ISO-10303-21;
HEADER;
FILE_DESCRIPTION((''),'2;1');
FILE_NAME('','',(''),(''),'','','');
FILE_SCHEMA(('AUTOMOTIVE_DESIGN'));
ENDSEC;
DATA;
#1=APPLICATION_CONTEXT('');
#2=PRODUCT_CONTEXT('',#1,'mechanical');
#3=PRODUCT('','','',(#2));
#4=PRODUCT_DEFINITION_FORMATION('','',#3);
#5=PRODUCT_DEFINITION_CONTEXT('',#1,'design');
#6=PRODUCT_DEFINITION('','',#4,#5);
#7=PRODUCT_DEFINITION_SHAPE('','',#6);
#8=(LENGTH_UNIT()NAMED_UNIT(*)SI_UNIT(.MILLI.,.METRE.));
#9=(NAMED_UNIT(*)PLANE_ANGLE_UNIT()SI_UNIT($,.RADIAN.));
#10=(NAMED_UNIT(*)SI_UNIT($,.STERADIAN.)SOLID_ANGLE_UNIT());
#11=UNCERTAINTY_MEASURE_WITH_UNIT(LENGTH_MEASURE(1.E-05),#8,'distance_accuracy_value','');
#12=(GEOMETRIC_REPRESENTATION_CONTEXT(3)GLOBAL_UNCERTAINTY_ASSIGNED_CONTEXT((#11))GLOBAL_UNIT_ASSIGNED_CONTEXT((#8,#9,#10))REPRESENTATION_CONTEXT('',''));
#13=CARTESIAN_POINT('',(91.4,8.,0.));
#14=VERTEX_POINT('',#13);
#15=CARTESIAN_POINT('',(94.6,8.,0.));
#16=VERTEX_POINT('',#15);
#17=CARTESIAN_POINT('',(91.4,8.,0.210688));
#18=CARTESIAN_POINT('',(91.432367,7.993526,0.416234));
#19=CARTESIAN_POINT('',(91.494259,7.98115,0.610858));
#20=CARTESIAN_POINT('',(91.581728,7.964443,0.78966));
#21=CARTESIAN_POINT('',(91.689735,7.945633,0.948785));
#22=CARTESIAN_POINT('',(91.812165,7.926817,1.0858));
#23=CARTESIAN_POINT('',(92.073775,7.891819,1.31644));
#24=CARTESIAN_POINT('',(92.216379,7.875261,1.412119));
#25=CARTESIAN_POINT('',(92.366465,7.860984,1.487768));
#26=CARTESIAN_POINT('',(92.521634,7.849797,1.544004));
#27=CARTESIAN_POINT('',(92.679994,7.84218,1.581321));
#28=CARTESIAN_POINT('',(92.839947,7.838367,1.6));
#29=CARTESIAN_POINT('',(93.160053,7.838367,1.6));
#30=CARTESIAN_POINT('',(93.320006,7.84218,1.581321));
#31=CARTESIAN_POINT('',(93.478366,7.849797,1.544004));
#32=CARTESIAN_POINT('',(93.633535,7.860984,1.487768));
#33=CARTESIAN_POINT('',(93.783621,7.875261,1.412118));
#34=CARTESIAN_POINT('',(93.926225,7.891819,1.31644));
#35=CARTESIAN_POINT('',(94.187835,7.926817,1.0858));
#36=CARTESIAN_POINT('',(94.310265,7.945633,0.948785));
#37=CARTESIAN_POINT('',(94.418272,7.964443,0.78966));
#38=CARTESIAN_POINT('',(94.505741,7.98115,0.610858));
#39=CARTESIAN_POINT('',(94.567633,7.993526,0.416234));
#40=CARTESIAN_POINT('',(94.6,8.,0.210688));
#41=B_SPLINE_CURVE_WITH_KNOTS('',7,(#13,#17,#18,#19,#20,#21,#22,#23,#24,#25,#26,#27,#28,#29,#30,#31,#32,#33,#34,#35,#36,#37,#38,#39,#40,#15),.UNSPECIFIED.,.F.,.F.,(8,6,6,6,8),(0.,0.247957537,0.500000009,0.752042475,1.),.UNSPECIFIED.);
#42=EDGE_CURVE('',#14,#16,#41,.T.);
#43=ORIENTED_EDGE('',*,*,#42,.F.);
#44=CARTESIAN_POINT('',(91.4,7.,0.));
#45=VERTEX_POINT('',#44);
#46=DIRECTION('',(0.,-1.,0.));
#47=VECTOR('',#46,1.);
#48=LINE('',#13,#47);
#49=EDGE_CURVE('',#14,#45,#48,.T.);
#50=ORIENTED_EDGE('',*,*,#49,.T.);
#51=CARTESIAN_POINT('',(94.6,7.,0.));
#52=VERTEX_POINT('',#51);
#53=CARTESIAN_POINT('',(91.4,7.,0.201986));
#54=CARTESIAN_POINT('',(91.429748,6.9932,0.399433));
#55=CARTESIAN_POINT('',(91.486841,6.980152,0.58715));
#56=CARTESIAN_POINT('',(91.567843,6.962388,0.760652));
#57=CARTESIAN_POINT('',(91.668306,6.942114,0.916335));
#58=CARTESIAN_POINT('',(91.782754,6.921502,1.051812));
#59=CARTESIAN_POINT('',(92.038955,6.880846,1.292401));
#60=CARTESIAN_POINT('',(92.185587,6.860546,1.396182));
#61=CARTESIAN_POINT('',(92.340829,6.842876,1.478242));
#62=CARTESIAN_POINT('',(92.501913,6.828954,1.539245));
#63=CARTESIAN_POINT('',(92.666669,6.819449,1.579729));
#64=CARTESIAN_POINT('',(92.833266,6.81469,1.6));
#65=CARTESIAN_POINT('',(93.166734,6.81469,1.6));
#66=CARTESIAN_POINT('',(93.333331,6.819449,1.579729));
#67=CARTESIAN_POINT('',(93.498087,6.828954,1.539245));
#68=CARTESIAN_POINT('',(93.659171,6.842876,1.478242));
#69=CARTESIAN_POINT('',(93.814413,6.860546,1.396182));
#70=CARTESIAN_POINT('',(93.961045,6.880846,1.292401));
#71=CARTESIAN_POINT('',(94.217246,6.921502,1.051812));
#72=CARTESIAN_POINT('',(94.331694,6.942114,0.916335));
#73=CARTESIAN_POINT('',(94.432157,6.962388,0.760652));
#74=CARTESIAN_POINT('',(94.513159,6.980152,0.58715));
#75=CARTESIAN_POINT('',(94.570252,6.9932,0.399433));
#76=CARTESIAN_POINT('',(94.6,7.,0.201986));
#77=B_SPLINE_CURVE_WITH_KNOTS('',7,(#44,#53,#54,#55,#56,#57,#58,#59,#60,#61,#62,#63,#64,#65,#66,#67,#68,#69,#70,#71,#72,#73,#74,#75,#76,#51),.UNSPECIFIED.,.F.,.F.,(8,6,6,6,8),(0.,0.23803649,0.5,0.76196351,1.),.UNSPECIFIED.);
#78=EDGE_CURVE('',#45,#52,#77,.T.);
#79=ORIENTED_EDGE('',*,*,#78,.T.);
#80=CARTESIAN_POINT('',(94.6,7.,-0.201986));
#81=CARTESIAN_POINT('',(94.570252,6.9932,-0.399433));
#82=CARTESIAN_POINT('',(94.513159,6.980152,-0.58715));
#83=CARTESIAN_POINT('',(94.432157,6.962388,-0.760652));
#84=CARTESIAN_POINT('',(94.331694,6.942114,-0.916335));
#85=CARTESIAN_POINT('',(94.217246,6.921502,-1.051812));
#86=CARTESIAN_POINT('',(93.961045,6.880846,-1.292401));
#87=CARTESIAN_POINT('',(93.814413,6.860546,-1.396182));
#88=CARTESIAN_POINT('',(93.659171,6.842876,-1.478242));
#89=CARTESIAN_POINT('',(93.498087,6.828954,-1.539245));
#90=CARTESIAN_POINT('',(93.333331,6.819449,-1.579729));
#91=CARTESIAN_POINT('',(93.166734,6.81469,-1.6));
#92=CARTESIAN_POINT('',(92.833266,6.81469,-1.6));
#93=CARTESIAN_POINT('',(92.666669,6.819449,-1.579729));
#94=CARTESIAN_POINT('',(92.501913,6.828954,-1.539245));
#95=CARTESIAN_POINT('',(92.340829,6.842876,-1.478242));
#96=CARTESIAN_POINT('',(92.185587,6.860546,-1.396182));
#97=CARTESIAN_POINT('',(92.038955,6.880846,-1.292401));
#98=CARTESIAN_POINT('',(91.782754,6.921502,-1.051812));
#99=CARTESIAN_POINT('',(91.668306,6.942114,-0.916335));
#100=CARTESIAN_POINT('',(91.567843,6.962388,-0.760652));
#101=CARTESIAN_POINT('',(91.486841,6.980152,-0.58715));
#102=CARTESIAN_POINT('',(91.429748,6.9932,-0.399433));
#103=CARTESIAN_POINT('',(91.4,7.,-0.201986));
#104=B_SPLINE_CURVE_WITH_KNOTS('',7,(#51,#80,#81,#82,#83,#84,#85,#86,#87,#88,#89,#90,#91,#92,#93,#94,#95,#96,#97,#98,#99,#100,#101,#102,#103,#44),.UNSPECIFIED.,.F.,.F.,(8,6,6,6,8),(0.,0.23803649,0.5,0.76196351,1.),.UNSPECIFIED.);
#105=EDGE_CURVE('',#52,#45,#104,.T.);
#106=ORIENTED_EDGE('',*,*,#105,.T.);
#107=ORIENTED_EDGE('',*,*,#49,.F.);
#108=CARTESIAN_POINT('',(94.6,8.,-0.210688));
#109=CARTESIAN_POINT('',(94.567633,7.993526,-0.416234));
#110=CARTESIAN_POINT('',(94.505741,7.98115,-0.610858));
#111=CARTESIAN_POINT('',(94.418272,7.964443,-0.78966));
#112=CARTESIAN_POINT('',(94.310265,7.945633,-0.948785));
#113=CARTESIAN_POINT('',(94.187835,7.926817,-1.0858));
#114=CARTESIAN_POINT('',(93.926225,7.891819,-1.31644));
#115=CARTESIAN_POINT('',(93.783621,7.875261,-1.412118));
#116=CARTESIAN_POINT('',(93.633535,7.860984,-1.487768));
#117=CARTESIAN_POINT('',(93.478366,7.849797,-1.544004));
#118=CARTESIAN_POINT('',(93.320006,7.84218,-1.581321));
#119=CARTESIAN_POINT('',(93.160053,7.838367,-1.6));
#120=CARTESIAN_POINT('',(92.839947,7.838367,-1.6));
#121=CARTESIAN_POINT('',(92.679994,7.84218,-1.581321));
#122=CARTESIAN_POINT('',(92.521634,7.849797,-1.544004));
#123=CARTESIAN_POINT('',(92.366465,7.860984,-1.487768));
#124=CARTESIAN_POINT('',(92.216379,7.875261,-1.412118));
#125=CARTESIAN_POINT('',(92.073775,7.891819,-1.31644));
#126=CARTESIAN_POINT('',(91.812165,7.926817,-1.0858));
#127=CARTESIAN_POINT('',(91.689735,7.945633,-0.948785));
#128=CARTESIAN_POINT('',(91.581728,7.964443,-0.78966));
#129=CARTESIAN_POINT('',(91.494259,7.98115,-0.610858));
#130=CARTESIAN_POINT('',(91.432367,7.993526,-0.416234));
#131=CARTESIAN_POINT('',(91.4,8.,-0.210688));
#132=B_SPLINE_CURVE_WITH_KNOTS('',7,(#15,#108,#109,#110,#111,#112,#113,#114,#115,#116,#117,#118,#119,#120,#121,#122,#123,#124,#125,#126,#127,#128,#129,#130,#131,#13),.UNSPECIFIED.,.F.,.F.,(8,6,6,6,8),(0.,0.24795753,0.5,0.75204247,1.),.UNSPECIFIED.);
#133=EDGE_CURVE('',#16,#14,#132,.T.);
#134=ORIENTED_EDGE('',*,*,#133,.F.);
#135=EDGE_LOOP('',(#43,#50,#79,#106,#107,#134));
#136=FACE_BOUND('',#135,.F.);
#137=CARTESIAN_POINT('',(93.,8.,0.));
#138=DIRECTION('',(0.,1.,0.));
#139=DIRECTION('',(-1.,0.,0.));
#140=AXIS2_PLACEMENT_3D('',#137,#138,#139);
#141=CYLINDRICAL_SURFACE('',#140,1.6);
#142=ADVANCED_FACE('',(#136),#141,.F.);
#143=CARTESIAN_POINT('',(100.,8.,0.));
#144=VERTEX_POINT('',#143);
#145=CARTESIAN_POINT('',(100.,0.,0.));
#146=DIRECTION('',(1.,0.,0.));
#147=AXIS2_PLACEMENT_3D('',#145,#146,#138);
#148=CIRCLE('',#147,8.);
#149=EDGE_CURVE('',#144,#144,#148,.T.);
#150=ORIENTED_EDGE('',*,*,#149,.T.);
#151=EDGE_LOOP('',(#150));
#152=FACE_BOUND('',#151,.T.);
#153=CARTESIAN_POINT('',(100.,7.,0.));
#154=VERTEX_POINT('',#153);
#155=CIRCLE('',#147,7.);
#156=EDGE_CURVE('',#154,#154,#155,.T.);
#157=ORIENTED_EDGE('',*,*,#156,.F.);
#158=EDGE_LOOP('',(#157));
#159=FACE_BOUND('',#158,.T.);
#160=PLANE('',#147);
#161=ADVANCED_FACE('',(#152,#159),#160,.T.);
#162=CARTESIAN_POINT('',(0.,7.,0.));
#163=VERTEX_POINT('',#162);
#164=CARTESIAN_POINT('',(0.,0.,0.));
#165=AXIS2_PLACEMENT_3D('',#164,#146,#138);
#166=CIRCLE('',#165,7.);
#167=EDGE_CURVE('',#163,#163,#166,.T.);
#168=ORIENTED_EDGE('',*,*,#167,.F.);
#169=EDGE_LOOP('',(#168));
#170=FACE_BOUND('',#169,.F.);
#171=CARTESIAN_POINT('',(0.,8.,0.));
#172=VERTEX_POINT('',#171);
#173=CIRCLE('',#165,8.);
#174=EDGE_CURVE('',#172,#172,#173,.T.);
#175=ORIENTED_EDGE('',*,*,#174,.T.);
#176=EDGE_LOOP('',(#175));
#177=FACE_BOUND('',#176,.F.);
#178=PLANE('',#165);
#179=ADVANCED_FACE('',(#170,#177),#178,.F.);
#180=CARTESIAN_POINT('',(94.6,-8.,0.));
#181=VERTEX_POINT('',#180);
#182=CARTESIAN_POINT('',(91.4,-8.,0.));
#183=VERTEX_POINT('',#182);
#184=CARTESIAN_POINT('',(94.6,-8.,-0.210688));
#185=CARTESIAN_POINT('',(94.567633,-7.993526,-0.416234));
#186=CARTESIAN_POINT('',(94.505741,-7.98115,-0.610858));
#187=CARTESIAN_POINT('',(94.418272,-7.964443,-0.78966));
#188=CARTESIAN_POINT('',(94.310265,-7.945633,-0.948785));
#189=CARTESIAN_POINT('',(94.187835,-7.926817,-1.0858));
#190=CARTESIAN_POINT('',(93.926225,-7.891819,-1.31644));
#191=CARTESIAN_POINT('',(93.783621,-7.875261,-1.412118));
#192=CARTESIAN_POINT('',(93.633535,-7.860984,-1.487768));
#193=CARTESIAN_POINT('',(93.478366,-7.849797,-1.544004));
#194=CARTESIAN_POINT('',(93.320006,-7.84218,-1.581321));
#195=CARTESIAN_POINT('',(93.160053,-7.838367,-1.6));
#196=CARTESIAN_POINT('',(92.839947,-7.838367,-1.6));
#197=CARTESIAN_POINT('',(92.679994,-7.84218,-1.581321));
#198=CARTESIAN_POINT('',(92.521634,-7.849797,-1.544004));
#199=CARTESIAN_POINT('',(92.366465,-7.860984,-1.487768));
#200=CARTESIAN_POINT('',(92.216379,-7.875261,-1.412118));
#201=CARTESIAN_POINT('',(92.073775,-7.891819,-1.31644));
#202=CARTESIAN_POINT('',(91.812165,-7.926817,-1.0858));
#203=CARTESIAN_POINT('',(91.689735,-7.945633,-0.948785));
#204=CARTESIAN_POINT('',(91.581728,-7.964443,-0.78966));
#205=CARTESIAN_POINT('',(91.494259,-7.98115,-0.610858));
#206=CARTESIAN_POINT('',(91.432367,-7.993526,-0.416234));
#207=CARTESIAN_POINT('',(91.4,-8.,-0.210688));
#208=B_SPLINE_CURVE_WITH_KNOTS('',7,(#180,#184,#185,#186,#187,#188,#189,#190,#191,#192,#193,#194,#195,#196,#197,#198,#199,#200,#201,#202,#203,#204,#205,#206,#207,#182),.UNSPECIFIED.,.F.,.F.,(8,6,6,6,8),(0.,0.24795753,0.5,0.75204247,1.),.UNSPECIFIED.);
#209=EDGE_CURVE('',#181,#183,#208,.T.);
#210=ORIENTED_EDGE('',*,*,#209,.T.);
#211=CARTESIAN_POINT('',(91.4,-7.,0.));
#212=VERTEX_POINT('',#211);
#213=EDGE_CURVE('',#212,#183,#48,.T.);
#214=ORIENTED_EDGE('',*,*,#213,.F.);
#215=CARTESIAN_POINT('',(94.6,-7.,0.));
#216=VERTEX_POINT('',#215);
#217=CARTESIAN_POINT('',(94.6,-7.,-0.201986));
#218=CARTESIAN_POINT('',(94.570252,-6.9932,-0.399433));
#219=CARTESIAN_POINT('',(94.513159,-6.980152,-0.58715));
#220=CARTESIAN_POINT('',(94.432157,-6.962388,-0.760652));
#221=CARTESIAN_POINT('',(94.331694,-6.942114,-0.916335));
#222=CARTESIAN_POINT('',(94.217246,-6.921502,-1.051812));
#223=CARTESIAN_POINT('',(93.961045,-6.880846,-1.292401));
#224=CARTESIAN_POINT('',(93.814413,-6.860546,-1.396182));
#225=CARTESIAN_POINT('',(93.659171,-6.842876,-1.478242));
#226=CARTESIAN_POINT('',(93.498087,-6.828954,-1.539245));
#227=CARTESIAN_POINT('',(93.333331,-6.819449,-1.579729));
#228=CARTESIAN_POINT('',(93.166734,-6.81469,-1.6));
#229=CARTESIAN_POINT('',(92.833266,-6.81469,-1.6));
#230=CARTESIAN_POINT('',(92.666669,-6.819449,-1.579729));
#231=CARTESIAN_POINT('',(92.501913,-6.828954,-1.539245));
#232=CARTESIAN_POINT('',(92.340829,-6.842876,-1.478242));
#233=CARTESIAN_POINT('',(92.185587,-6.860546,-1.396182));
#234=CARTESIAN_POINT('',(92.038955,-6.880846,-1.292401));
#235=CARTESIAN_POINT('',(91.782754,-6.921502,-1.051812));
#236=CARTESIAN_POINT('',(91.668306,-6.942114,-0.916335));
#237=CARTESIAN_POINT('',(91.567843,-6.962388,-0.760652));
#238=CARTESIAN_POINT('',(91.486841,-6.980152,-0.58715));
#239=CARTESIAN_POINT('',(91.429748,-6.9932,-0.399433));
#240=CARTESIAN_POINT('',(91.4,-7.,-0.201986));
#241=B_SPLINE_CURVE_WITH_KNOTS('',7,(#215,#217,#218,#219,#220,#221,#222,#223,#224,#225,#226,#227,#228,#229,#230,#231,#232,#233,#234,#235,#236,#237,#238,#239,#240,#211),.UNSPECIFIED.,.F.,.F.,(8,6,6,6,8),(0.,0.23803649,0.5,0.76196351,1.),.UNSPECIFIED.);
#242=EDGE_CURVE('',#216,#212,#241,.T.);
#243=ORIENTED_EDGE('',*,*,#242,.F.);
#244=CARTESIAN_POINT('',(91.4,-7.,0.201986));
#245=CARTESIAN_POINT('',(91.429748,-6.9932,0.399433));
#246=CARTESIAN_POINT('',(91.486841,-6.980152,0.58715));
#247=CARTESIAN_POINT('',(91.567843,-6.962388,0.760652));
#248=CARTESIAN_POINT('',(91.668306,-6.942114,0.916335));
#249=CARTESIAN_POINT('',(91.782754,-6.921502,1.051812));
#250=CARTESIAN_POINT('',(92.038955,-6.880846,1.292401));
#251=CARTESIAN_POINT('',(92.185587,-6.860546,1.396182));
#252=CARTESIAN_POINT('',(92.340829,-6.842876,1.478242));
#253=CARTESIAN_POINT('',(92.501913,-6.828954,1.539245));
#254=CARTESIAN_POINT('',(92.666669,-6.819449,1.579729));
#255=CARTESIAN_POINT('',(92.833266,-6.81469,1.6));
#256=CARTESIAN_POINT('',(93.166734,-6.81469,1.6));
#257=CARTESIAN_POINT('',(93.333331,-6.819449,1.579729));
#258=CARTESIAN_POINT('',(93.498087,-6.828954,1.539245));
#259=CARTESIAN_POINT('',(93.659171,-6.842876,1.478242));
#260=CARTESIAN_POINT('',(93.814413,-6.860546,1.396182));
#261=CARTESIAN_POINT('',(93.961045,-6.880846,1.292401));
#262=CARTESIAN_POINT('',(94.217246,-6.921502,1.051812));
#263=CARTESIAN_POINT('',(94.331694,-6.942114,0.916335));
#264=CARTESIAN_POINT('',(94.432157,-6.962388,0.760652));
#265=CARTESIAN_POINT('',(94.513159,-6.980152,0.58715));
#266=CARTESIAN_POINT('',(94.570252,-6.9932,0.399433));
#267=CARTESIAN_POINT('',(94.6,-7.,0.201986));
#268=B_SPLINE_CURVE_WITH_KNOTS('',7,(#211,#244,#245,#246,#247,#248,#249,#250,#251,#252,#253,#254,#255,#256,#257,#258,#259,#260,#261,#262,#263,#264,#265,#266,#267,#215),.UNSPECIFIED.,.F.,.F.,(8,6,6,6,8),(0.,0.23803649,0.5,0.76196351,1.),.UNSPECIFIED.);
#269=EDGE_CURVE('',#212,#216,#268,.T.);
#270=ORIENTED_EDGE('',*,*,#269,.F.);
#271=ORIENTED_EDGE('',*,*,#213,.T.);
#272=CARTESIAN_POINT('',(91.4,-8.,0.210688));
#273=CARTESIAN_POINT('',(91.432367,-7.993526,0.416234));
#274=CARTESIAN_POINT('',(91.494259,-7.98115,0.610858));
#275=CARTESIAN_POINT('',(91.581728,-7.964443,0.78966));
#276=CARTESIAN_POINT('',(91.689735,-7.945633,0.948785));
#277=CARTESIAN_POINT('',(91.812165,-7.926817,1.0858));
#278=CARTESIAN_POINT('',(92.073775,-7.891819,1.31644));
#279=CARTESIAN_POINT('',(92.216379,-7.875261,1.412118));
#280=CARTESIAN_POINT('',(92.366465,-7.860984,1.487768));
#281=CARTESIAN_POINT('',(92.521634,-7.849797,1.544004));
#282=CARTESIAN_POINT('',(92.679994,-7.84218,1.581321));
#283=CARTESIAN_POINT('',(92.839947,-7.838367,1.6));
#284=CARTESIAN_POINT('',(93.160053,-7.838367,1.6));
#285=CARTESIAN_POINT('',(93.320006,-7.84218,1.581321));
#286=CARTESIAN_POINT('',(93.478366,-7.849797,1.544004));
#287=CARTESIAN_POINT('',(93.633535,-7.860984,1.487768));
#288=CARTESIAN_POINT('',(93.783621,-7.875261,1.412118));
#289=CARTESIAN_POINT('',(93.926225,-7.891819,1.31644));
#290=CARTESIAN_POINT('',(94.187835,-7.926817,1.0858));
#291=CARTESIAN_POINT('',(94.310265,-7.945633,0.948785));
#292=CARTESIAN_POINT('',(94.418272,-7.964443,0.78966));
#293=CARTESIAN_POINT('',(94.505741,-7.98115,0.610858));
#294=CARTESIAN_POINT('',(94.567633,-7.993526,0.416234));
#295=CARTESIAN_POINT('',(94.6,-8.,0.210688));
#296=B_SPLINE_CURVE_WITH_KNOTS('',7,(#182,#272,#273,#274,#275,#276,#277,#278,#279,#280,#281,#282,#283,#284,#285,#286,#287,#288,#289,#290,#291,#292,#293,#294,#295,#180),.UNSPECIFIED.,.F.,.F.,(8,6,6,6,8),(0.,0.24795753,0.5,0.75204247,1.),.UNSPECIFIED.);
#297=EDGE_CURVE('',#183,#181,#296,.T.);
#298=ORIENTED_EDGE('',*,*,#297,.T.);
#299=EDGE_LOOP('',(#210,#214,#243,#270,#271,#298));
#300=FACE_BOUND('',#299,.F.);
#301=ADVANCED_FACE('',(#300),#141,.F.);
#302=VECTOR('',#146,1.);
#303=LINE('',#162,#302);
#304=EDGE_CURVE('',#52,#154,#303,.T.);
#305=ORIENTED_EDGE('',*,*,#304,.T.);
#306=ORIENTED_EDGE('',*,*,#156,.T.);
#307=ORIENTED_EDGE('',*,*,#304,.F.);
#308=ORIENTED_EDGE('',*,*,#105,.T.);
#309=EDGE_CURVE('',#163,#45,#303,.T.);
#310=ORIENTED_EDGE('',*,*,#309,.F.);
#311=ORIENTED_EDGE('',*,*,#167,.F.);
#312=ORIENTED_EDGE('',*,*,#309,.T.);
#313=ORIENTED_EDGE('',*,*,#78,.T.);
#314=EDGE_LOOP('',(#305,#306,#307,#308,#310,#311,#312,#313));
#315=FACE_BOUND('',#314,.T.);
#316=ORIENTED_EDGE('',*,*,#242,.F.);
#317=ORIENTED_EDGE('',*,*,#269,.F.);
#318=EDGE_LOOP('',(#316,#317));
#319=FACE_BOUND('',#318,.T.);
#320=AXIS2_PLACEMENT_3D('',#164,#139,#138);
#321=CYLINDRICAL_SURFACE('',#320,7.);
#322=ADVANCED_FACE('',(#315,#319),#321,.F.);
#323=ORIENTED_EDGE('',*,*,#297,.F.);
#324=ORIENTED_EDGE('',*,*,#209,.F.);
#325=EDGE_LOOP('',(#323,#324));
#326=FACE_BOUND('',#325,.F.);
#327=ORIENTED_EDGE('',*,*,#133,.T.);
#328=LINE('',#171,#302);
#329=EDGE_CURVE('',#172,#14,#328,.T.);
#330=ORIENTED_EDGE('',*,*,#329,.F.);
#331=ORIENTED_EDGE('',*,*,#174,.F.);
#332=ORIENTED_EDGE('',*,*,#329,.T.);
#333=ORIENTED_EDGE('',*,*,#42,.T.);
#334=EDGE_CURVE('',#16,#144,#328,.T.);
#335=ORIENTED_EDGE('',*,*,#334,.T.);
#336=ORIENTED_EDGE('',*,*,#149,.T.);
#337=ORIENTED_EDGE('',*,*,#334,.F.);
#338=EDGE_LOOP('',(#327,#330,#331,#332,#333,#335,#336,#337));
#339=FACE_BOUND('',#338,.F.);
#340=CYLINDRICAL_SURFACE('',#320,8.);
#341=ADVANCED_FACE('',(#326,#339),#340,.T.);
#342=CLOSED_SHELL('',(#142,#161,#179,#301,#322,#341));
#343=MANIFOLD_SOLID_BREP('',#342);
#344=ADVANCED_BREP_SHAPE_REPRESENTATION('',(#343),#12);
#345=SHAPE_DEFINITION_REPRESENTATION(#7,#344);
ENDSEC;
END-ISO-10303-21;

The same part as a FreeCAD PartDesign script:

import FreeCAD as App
import Part
import Sketcher
from FreeCAD import Vector

doc = App.newDocument("Part")
body = doc.addObject("PartDesign::Body", "Body")

# Sketch on YZ plane
sketch1 = doc.addObject("Sketcher::SketchObject", "Sketch")
body.addObject(sketch1)
sketch1.AttachmentSupport = (doc.YZ_Plane, [""])
sketch1.MapMode = "FlatFace"
sketch1.addGeometry([
    Part.Circle(Vector(0, 0, 0), Vector(0, 0, 1), 8),
    Part.Circle(Vector(0, 0, 0), Vector(0, 0, 1), 7),
], False)
sketch1.addConstraint([
    Sketcher.Constraint("Coincident", 0, 3, -1, 1),
    Sketcher.Constraint("Coincident", 1, 3, -1, 1),
    Sketcher.Constraint("Diameter", 0, 16.0),
    Sketcher.Constraint("Diameter", 1, 14.0),
])
pad1 = doc.addObject("PartDesign::Pad", "Pad")
body.addObject(pad1)
pad1.Profile = sketch1
pad1.Length = 100

# Sketch on XZ plane
sketch2 = doc.addObject("Sketcher::SketchObject", "Sketch001")
body.addObject(sketch2)
sketch2.AttachmentSupport = (doc.XZ_Plane, [""])
sketch2.MapMode = "FlatFace"
sketch2.AttachmentOffset = App.Placement(Vector(0, 0, -8), App.Rotation())
sketch2.addGeometry(Part.Circle(Vector(93, 0, 0), Vector(0, 0, 1), 1.6), False)
sketch2.addConstraint([
    Sketcher.Constraint("PointOnObject", 0, 3, -1),
    Sketcher.Constraint("Diameter", 0, 3.2),
    Sketcher.Constraint("DistanceX", -1, 1, 0, 3, 93.0),
])
pocket1 = doc.addObject("PartDesign::Pocket", "Pocket")
body.addObject(pocket1)
pocket1.Profile = sketch2
pocket1.Type = "ThroughAll"
pocket1.Reversed = True

doc.recompute()
